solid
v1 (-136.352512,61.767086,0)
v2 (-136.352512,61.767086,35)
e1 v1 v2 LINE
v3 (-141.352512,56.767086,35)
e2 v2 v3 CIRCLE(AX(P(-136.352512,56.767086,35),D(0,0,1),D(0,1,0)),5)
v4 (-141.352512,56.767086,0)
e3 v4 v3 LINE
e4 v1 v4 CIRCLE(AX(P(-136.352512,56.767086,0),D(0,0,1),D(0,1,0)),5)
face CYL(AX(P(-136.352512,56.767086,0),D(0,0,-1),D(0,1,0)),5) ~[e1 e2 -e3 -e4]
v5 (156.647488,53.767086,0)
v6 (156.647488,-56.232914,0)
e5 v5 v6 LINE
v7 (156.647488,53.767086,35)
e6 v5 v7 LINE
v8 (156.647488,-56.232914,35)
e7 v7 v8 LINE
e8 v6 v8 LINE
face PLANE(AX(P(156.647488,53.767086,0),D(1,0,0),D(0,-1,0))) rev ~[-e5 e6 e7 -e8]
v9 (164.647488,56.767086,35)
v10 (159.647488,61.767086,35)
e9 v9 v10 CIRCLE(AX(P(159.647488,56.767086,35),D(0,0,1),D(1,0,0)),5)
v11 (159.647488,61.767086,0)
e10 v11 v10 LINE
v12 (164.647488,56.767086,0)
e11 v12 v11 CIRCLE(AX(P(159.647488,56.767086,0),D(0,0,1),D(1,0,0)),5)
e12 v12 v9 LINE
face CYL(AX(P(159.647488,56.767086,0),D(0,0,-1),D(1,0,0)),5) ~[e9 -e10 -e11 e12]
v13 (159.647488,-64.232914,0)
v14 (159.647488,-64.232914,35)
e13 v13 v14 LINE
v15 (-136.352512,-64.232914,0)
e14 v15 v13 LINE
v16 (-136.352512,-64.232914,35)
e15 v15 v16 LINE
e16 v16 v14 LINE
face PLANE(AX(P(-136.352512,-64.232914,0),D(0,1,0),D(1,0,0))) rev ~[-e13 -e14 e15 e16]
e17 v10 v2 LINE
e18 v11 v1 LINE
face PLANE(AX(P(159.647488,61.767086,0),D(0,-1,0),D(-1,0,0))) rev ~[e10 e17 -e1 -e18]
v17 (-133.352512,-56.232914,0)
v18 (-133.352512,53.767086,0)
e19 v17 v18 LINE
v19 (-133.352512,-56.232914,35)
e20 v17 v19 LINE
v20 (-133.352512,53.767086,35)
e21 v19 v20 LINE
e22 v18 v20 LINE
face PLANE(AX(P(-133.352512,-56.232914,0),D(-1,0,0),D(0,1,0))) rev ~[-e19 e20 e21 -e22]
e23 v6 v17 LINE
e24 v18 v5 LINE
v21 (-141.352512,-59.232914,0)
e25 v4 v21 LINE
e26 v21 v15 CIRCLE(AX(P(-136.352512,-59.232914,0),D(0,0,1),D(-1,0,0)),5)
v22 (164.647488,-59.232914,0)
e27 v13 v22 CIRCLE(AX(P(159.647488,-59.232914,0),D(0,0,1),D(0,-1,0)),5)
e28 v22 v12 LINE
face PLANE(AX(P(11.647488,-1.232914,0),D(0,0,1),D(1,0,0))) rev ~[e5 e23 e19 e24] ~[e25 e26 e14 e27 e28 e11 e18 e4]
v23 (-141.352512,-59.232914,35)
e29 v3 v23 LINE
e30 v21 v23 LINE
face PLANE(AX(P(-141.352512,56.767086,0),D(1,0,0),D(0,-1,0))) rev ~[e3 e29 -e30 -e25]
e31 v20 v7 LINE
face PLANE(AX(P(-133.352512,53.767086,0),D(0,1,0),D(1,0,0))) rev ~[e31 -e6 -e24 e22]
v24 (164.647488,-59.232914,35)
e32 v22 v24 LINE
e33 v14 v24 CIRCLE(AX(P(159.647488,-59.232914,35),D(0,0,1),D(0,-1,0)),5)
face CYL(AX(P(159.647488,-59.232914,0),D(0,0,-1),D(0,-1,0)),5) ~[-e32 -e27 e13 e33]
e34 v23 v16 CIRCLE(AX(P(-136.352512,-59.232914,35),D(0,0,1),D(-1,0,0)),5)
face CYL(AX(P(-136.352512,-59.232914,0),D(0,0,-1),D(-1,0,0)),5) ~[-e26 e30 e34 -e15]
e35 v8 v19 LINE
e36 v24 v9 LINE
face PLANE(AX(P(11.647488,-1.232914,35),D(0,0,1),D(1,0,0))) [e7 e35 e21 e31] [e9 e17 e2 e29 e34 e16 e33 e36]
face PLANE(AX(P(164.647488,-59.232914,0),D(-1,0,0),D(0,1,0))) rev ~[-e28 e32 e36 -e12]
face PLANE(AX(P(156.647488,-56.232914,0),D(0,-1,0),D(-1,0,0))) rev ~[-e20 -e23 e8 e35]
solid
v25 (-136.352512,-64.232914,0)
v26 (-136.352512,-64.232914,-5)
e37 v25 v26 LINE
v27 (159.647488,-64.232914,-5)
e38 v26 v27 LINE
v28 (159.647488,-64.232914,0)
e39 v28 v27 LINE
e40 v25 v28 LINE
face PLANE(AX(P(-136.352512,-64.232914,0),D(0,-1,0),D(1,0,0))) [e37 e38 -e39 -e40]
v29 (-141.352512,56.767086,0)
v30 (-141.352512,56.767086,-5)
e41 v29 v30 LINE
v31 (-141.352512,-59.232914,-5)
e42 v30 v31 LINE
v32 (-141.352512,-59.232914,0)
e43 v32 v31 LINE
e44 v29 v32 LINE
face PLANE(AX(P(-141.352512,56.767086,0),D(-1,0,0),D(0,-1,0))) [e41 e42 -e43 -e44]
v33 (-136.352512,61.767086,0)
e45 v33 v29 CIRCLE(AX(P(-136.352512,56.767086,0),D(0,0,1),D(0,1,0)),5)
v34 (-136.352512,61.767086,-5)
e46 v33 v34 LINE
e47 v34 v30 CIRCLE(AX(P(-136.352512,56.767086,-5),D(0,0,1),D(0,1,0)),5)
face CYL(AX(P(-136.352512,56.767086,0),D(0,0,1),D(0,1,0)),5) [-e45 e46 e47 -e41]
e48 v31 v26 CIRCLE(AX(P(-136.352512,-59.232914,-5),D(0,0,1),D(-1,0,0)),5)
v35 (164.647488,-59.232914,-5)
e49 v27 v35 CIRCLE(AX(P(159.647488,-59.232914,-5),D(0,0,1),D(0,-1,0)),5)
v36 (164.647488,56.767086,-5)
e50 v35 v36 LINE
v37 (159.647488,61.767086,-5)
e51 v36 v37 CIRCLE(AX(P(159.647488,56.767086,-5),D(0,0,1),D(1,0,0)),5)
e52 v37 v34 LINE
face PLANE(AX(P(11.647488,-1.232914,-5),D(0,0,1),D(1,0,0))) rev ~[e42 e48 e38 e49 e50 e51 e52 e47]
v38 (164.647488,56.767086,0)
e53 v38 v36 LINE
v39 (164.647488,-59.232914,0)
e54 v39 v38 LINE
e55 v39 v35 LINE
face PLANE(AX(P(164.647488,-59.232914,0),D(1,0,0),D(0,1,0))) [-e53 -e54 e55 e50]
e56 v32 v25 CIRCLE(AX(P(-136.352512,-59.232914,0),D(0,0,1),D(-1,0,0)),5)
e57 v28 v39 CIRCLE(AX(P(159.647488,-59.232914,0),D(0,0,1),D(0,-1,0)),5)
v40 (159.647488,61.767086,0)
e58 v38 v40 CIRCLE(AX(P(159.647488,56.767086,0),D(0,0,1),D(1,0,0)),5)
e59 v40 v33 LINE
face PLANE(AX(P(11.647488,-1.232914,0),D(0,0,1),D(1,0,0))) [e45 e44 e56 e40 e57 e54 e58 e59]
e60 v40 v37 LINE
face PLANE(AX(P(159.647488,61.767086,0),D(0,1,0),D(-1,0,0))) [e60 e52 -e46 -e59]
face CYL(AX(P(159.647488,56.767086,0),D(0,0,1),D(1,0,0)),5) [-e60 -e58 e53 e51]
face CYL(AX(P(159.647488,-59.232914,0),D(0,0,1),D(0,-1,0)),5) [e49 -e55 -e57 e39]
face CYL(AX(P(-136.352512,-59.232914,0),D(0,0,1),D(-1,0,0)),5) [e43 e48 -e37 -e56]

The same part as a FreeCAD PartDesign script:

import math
import FreeCAD as App
import Part
import Sketcher

V = App.Vector
Q = App.Units.Quantity

doc = App.newDocument("Part")
body = doc.addObject("PartDesign::Body", "Body")

sketch1 = doc.addObject("Sketcher::SketchObject", "Sketch")
body.addObject(sketch1)
sketch1.AttachmentSupport = (doc.XY_Plane, [""])
sketch1.MapMode = "FlatFace"
sketch1.addGeometry(Part.ArcOfCircle(Part.Circle(V(159.647488, 56.767086, 0), V(0, 0, 1), 5), math.radians(0), math.radians(90)), False)
sketch1.addGeometry(Part.LineSegment(V(159.647488, 61.767086, 0), V(-136.352512, 61.767086, 0)), False)
sketch1.addGeometry(Part.ArcOfCircle(Part.Circle(V(-136.352512, 56.767086, 0), V(0, 0, 1), 5), math.radians(90), math.radians(180)), False)
sketch1.addGeometry(Part.LineSegment(V(-141.352512, 56.767086, 0), V(-141.352512, -59.232914, 0)), False)
sketch1.addGeometry(Part.ArcOfCircle(Part.Circle(V(-136.352512, -59.232914, 0), V(0, 0, 1), 5), math.radians(180), math.radians(270)), False)
sketch1.addGeometry(Part.LineSegment(V(-136.352512, -64.232914, 0), V(159.647488, -64.232914, 0)), False)
sketch1.addGeometry(Part.ArcOfCircle(Part.Circle(V(159.647488, -59.232914, 0), V(0, 0, 1), 5), math.radians(-90), math.radians(0)), False)
sketch1.addGeometry(Part.LineSegment(V(164.647488, -59.232914, 0), V(164.647488, 56.767086, 0)), False)
sketch1.addConstraint(Sketcher.Constraint("Tangent", 0, 2, 1, 1))
sketch1.addConstraint(Sketcher.Constraint("Tangent", 1, 2, 2, 1))
sketch1.addConstraint(Sketcher.Constraint("Tangent", 2, 2, 3, 1))
sketch1.addConstraint(Sketcher.Constraint("Tangent", 3, 2, 4, 1))
sketch1.addConstraint(Sketcher.Constraint("Tangent", 4, 2, 5, 1))
sketch1.addConstraint(Sketcher.Constraint("Tangent", 5, 2, 6, 1))
sketch1.addConstraint(Sketcher.Constraint("Tangent", 6, 2, 7, 1))
sketch1.addConstraint(Sketcher.Constraint("Tangent", 7, 2, 0, 1))
sketch1.addConstraint(Sketcher.Constraint("Horizontal", 1))
sketch1.addConstraint(Sketcher.Constraint("Vertical", 3))
sketch1.addConstraint(Sketcher.Constraint("Horizontal", 5))
sketch1.addConstraint(Sketcher.Constraint("Vertical", 7))
sketch1.addConstraint(Sketcher.Constraint("Equal", 0, 2))
sketch1.addConstraint(Sketcher.Constraint("Equal", 2, 4))
sketch1.addConstraint(Sketcher.Constraint("Equal", 4, 6))
sketch1.addConstraint(Sketcher.Constraint("Radius", 0, Q("5 mm")))
sketch1.addConstraint(Sketcher.Constraint("DistanceX", 1, 2, 1, 1, Q("296 mm")))
sketch1.addConstraint(Sketcher.Constraint("DistanceY", 3, 2, 3, 1, Q("116 mm")))
sketch1.addConstraint(Sketcher.Constraint("DistanceX", -1, 1, 0, 3, Q("159.647488 mm")))
sketch1.addConstraint(Sketcher.Constraint("DistanceY", -1, 1, 0, 3, Q("56.767086 mm")))
pad1 = doc.addObject("PartDesign::Pad", "Pad")
body.addObject(pad1)
pad1.Profile = sketch1
pad1.Length = 5
pad1.Reversed = True
body2 = doc.addObject("PartDesign::Body", "Body001")

sketch2 = doc.addObject("Sketcher::SketchObject", "Sketch001")
body2.addObject(sketch2)
sketch2.AttachmentSupport = (doc.getObject("XY_Plane001"), [""])
sketch2.MapMode = "FlatFace"
sketch2.addGeometry(Part.ArcOfCircle(Part.Circle(V(159.647488, 56.767086, 0), V(0, 0, 1), 5), math.radians(0), math.radians(90)), False)
sketch2.addGeometry(Part.LineSegment(V(159.647488, 61.767086, 0), V(-136.352512, 61.767086, 0)), False)
sketch2.addGeometry(Part.ArcOfCircle(Part.Circle(V(-136.352512, 56.767086, 0), V(0, 0, 1), 5), math.radians(90), math.radians(180)), False)
sketch2.addGeometry(Part.LineSegment(V(-141.352512, 56.767086, 0), V(-141.352512, -59.232914, 0)), False)
sketch2.addGeometry(Part.ArcOfCircle(Part.Circle(V(-136.352512, -59.232914, 0), V(0, 0, 1), 5), math.radians(180), math.radians(270)), False)
sketch2.addGeometry(Part.LineSegment(V(-136.352512, -64.232914, 0), V(159.647488, -64.232914, 0)), False)
sketch2.addGeometry(Part.ArcOfCircle(Part.Circle(V(159.647488, -59.232914, 0), V(0, 0, 1), 5), math.radians(-90), math.radians(0)), False)
sketch2.addGeometry(Part.LineSegment(V(164.647488, -59.232914, 0), V(164.647488, 56.767086, 0)), False)
sketch2.addGeometry(Part.LineSegment(V(-133.352512, 53.767086, 0), V(156.647488, 53.767086, 0)), False)
sketch2.addGeometry(Part.LineSegment(V(156.647488, 53.767086, 0), V(156.647488, -56.232914, 0)), False)
sketch2.addGeometry(Part.LineSegment(V(156.647488, -56.232914, 0), V(-133.352512, -56.232914, 0)), False)
sketch2.addGeometry(Part.LineSegment(V(-133.352512, -56.232914, 0), V(-133.352512, 53.767086, 0)), False)
sketch2.addConstraint(Sketcher.Constraint("Tangent", 0, 2, 1, 1))
sketch2.addConstraint(Sketcher.Constraint("Tangent", 1, 2, 2, 1))
sketch2.addConstraint(Sketcher.Constraint("Tangent", 2, 2, 3, 1))
sketch2.addConstraint(Sketcher.Constraint("Tangent", 3, 2, 4, 1))
sketch2.addConstraint(Sketcher.Constraint("Tangent", 4, 2, 5, 1))
sketch2.addConstraint(Sketcher.Constraint("Tangent", 5, 2, 6, 1))
sketch2.addConstraint(Sketcher.Constraint("Tangent", 6, 2, 7, 1))
sketch2.addConstraint(Sketcher.Constraint("Tangent", 7, 2, 0, 1))
sketch2.addConstraint(Sketcher.Constraint("Coincident", 8, 2, 9, 1))
sketch2.addConstraint(Sketcher.Constraint("Coincident", 9, 2, 10, 1))
sketch2.addConstraint(Sketcher.Constraint("Coincident", 10, 2, 11, 1))
sketch2.addConstraint(Sketcher.Constraint("Coincident", 11, 2, 8, 1))
sketch2.addConstraint(Sketcher.Constraint("Horizontal", 1))
sketch2.addConstraint(Sketcher.Constraint("Vertical", 3))
sketch2.addConstraint(Sketcher.Constraint("Horizontal", 5))
sketch2.addConstraint(Sketcher.Constraint("Vertical", 7))
sketch2.addConstraint(Sketcher.Constraint("Horizontal", 8))
sketch2.addConstraint(Sketcher.Constraint("Vertical", 9))
sketch2.addConstraint(Sketcher.Constraint("Horizontal", 10))
sketch2.addConstraint(Sketcher.Constraint("Vertical", 11))
sketch2.addConstraint(Sketcher.Constraint("Equal", 0, 2))
sketch2.addConstraint(Sketcher.Constraint("Equal", 2, 4))
sketch2.addConstraint(Sketcher.Constraint("Equal", 4, 6))
sketch2.addConstraint(Sketcher.Constraint("Radius", 0, Q("5 mm")))
sketch2.addConstraint(Sketcher.Constraint("DistanceX", 1, 2, 1, 1, Q("296 mm")))
sketch2.addConstraint(Sketcher.Constraint("DistanceX", 8, 1, 8, 2, Q("290 mm")))
sketch2.addConstraint(Sketcher.Constraint("DistanceY", 3, 2, 3, 1, Q("116 mm")))
sketch2.addConstraint(Sketcher.Constraint("DistanceY", 9, 2, 9, 1, Q("110 mm")))
sketch2.addConstraint(Sketcher.Constraint("DistanceX", 8, 2, 0, 3, Q("3 mm")))
sketch2.addConstraint(Sketcher.Constraint("DistanceY", 8, 2, 0, 3, Q("3 mm")))
sketch2.addConstraint(Sketcher.Constraint("DistanceX", -1, 1, 0, 3, Q("159.647488 mm")))
sketch2.addConstraint(Sketcher.Constraint("DistanceY", -1, 1, 0, 3, Q("56.767086 mm")))
pad2 = doc.addObject("PartDesign::Pad", "Pad001")
body2.addObject(pad2)
pad2.Profile = sketch2
pad2.Length = 35

doc.recompute()
